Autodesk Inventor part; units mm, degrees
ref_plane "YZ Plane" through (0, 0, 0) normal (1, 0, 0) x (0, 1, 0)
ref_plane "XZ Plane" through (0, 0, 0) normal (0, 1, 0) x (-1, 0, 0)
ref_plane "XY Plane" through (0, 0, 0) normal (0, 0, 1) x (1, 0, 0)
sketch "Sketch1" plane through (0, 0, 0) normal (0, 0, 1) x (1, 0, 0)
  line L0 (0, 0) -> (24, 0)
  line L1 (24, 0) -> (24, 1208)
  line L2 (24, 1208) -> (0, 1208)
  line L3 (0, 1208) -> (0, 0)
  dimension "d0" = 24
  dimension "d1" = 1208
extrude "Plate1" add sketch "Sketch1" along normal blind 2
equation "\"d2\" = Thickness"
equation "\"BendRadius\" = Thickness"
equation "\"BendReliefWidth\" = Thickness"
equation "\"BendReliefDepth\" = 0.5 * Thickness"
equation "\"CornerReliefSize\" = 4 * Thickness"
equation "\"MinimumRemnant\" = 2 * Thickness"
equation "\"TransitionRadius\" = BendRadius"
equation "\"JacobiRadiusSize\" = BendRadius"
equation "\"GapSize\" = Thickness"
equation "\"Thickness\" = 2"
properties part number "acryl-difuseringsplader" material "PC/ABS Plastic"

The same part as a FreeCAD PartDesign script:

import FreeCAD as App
import Part
import Sketcher
Q = App.Units.Quantity


def add_polygon(sketch, points):
    """Adds a closed chain of lines whose ends are joined by coincident constraints."""
    first, n = sketch.GeometryCount, len(points)
    for a, b in zip(points, points[1:] + points[:1]):
        sketch.addGeometry(Part.LineSegment(App.Vector(*a, 0), App.Vector(*b, 0)), False)
    for i in range(n):
        sketch.addConstraint(Sketcher.Constraint("Coincident", first + i, 2, first + (i + 1) % n, 1))

doc = App.newDocument("Part")
body = doc.addObject("PartDesign::Body", "Body")

# Sketch on XY plane
sketch1 = body.newObject("Sketcher::SketchObject", "Sketch")
sketch1.AttachmentSupport = (doc.getObject("XY_Plane"), [""])
sketch1.MapMode = "FlatFace"
add_polygon(sketch1, [(0, 1208), (0, 0), (24, 0), (24, 1208)])  # lines 0-3
sketch1.addConstraint([
    Sketcher.Constraint("Vertical", 0),
    Sketcher.Constraint("Horizontal", 1),
    Sketcher.Constraint("Vertical", 2),
    Sketcher.Constraint("Horizontal", 3),
    Sketcher.Constraint("Coincident", 0, 2, -1, 1),
    Sketcher.Constraint("DistanceX", 1, 1, 1, 2, Q("24 mm")),
    Sketcher.Constraint("DistanceY", 0, 2, 0, 1, Q("1208 mm")),
])
pad1 = body.newObject("PartDesign::Pad", "Pad")
pad1.Profile = sketch1
pad1.Length = 2

doc.recompute()
